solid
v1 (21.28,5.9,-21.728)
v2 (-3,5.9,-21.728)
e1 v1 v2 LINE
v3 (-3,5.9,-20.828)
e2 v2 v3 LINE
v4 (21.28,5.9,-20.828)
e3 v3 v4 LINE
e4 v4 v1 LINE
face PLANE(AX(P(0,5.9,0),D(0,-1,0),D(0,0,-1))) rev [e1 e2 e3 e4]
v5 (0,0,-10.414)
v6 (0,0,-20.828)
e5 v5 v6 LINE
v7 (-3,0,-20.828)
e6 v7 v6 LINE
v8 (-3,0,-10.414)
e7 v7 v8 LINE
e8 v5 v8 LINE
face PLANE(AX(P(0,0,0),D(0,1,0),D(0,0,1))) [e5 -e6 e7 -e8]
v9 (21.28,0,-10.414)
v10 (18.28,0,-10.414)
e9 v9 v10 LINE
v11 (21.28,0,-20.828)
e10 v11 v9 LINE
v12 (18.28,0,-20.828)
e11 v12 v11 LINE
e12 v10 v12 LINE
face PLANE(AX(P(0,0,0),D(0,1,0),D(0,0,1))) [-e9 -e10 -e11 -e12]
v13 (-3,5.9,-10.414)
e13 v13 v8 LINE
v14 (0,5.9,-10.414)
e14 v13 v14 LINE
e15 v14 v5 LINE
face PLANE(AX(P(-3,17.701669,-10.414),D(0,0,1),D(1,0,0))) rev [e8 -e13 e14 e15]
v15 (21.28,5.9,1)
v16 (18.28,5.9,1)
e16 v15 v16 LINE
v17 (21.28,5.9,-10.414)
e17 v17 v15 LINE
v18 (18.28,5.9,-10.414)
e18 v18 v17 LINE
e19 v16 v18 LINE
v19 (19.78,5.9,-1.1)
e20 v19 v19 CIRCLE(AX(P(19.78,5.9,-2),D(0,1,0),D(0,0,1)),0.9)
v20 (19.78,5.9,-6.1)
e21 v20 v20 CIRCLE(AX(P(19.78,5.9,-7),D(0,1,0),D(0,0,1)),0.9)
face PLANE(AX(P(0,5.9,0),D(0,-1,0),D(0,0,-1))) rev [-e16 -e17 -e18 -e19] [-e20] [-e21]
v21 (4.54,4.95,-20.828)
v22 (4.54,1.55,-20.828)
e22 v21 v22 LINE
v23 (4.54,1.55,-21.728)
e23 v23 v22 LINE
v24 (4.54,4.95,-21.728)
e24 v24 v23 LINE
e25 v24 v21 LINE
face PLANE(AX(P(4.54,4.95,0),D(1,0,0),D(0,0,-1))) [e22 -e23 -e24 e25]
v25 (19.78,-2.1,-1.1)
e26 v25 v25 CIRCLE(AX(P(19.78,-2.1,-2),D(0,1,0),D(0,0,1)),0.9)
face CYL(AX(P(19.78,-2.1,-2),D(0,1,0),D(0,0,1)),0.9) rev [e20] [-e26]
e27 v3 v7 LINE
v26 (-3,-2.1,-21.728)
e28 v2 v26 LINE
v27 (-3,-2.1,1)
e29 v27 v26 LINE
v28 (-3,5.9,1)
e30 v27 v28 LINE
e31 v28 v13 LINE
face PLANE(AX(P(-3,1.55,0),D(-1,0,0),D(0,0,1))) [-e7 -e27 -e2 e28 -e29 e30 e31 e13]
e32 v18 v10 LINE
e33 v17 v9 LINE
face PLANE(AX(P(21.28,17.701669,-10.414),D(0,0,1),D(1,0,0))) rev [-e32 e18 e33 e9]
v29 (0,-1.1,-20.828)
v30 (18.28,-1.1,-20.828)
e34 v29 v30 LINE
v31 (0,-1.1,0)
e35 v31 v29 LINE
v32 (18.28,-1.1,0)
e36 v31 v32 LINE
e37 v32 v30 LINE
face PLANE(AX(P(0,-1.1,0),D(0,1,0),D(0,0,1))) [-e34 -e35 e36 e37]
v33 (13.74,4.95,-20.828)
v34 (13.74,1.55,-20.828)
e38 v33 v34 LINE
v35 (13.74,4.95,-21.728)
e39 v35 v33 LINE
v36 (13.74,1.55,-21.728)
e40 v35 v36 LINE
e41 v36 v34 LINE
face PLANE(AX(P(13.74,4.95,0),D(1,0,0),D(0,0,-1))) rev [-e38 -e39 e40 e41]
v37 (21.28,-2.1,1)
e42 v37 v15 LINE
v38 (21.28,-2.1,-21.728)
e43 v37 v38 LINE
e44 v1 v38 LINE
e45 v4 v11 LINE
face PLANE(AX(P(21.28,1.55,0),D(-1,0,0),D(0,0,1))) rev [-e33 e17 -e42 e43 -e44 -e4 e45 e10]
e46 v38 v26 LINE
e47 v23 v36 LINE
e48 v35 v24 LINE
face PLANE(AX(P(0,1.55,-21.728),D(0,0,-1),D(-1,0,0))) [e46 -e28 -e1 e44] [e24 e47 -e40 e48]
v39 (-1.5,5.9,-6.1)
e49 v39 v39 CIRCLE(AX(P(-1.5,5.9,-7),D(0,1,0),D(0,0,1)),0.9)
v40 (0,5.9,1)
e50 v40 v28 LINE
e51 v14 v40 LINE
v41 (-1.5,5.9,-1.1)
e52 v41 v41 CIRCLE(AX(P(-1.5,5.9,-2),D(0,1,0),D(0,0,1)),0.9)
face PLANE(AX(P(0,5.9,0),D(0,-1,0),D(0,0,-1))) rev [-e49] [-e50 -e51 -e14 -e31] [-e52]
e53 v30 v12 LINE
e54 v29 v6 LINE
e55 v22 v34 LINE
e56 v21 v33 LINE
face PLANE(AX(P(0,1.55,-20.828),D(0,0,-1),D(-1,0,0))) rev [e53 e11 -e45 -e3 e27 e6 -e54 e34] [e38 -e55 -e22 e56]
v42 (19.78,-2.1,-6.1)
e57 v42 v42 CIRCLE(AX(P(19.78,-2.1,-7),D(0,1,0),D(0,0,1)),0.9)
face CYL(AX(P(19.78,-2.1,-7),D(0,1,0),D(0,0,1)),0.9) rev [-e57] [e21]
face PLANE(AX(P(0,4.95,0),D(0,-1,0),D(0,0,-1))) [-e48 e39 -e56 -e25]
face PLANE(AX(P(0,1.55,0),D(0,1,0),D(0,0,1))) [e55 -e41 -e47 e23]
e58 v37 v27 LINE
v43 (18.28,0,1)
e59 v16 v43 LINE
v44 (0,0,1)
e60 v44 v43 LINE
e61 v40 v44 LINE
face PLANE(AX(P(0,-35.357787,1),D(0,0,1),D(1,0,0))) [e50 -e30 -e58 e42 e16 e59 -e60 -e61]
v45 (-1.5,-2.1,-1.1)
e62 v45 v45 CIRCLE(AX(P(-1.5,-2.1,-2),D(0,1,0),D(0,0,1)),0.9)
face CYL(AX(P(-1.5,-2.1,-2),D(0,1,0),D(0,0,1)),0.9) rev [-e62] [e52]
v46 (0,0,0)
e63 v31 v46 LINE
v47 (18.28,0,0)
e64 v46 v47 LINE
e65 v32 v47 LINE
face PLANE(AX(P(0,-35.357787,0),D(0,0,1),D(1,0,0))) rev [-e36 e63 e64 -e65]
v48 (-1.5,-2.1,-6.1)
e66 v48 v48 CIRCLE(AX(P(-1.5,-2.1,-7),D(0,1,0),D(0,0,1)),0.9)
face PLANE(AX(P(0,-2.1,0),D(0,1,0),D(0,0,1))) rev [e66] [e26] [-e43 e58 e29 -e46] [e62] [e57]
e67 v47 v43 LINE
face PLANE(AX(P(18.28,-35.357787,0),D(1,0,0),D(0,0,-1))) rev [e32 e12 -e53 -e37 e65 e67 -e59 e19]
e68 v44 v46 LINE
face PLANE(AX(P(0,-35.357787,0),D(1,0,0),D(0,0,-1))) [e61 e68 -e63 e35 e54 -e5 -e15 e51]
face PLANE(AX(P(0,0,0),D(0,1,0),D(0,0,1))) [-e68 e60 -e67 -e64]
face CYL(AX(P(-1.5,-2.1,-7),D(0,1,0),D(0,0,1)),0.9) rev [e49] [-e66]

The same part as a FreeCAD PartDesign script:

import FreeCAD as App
import Part
import Sketcher
from FreeCAD import Vector
Q = App.Units.Quantity


def add_polygon(sketch, points):
    """Adds a closed chain of lines whose ends are joined by coincident constraints."""
    first, n = sketch.GeometryCount, len(points)
    for a, b in zip(points, points[1:] + points[:1]):
        sketch.addGeometry(Part.LineSegment(App.Vector(*a, 0), App.Vector(*b, 0)), False)
    for i in range(n):
        sketch.addConstraint(Sketcher.Constraint("Coincident", first + i, 2, first + (i + 1) % n, 1))

doc = App.newDocument("Part")
body = doc.addObject("PartDesign::Body", "Body")

# Sketch on XZ plane
sketch1 = body.newObject("Sketcher::SketchObject", "Sketch")
sketch1.AttachmentSupport = (doc.getObject("XZ_Plane"), [""])
sketch1.MapMode = "FlatFace"
add_polygon(sketch1, [(21.28, -20.828), (21.28, -21.728), (-3, -21.728), (-3, -20.828)])  # lines 0-3
sketch1.addConstraint([
    Sketcher.Constraint("Vertical", 0),
    Sketcher.Constraint("Horizontal", 1),
    Sketcher.Constraint("Vertical", 2),
    Sketcher.Constraint("Horizontal", 3),
    Sketcher.Constraint("DistanceY", 0, 2, 0, 1, Q("0.9 mm")),
    Sketcher.Constraint("DistanceX", 1, 2, -1, 1, Q("3 mm")),
    Sketcher.Constraint("DistanceX", 1, 2, 1, 1, Q("24.28 mm")),
    Sketcher.Constraint("DistanceY", 0, 2, -1, 1, Q("21.728 mm")),
])
pad1 = body.newObject("PartDesign::Pad", "Pad")
pad1.Profile = sketch1
pad1.Length = 1.55
pad1.Reversed = True
body2 = doc.addObject("PartDesign::Body", "Body001")

# Sketch on XZ plane
sketch2 = body2.newObject("Sketcher::SketchObject", "Sketch001")
sketch2.AttachmentSupport = (doc.getObject("XZ_Plane001"), [""])
sketch2.MapMode = "FlatFace"
sketch2.AttachmentOffset = App.Placement(Vector(0, 0, 1.1), App.Rotation())
add_polygon(sketch2, [(0, -20.828), (0, 0), (18.28, 0), (18.28, -20.828)])  # lines 0-3
sketch2.addConstraint([
    Sketcher.Constraint("Vertical", 0),
    Sketcher.Constraint("Horizontal", 1),
    Sketcher.Constraint("Vertical", 2),
    Sketcher.Constraint("Horizontal", 3),
    Sketcher.Constraint("Coincident", 0, 2, -1, 1),
    Sketcher.Constraint("DistanceX", 1, 1, 1, 2, Q("18.28 mm")),
    Sketcher.Constraint("DistanceY", 0, 1, 0, 2, Q("20.828 mm")),
])
pad2 = body2.newObject("PartDesign::Pad", "Pad001")
pad2.Profile = sketch2
pad2.Length = 1
body.AllowCompound = True
doc.recompute()

boolean = body.newObject("PartDesign::Boolean", "Boolean")
boolean.Type = "Fuse"
boolean.addObjects([body2])

# Sketch on XZ plane
sketch3 = body.newObject("Sketcher::SketchObject", "Sketch002")
sketch3.AttachmentSupport = (doc.getObject("XZ_Plane"), [""])
sketch3.MapMode = "FlatFace"
add_polygon(sketch3, [(-3, 1), (21.28, 1), (21.28, -21.728), (-3, -21.728)])  # lines 0-3
add_polygon(sketch3, [(18.28, -20.828), (18.28, 0), (0, 0), (0, -20.828)])  # lines 4-7
sketch3.addConstraint([
    Sketcher.Constraint("Horizontal", 0),
    Sketcher.Constraint("Vertical", 1),
    Sketcher.Constraint("Horizontal", 2),
    Sketcher.Constraint("Vertical", 3),
    Sketcher.Constraint("Vertical", 4),
    Sketcher.Constraint("Horizontal", 5),
    Sketcher.Constraint("Vertical", 6),
    Sketcher.Constraint("Horizontal", 7),
    Sketcher.Constraint("Coincident", 5, 2, -1, 1),
    Sketcher.Constraint("DistanceY", -1, 1, 0, 2, Q("1 mm")),
    Sketcher.Constraint("DistanceX", 2, 2, -1, 1, Q("3 mm")),
    Sketcher.Constraint("DistanceX", 4, 2, 0, 2, Q("3 mm")),
    Sketcher.Constraint("DistanceX", 0, 1, 0, 2, Q("24.28 mm")),
    Sketcher.Constraint("DistanceY", 2, 2, 6, 2, Q("0.9 mm")),
    Sketcher.Constraint("DistanceY", 1, 2, 1, 1, Q("22.728 mm")),
])
pad3 = body.newObject("PartDesign::Pad", "Pad002")
pad3.Profile = sketch3
pad3.Length = 2.1

# Sketch on XZ plane
sketch4 = body.newObject("Sketcher::SketchObject", "Sketch003")
sketch4.AttachmentSupport = (doc.getObject("XZ_Plane"), [""])
sketch4.MapMode = "FlatFace"
sketch4.AttachmentOffset = App.Placement(Vector(0, 0, -1.55), App.Rotation())
add_polygon(sketch4, [(-3, -21.728), (-3, -20.828), (4.54, -20.828), (4.54, -21.728)])  # lines 0-3
add_polygon(sketch4, [(13.74, -21.728), (13.74, -20.828), (21.28, -20.828), (21.28, -21.728)])  # lines 4-7
sketch4.addConstraint([
    Sketcher.Constraint("Vertical", 0),
    Sketcher.Constraint("Horizontal", 1),
    Sketcher.Constraint("Vertical", 2),
    Sketcher.Constraint("Horizontal", 3),
    Sketcher.Constraint("Vertical", 4),
    Sketcher.Constraint("Horizontal", 5),
    Sketcher.Constraint("Vertical", 6),
    Sketcher.Constraint("Horizontal", 7),
    Sketcher.Constraint("Horizontal", 1, 2, 4, 2),
    Sketcher.Constraint("Horizontal", 3, 2, 6, 2),
    Sketcher.Constraint("Equal", 3, 5),
    Sketcher.Constraint("DistanceY", 0, 1, 0, 2, Q("0.9 mm")),
    Sketcher.Constraint("DistanceX", 0, 2, -1, 1, Q("3 mm")),
    Sketcher.Constraint("DistanceX", 1, 1, 1, 2, Q("7.54 mm")),
    Sketcher.Constraint("DistanceX", 1, 2, 4, 2, Q("9.2 mm")),
    Sketcher.Constraint("DistanceY", 0, 2, -1, 1, Q("20.828 mm")),
])
pad4 = body.newObject("PartDesign::Pad", "Pad003")
pad4.Profile = sketch4
pad4.Length = 3.4
pad4.Reversed = True

# Sketch on XZ plane
sketch5 = body.newObject("Sketcher::SketchObject", "Sketch004")
sketch5.AttachmentSupport = (doc.getObject("XZ_Plane"), [""])
sketch5.MapMode = "FlatFace"
sketch5.AttachmentOffset = App.Placement(Vector(0, 0, -4.95), App.Rotation())
add_polygon(sketch5, [(-3, -21.728), (-3, -20.828), (21.28, -20.828), (21.28, -21.728)])  # lines 0-3
sketch5.addConstraint([
    Sketcher.Constraint("Vertical", 0),
    Sketcher.Constraint("Horizontal", 1),
    Sketcher.Constraint("Vertical", 2),
    Sketcher.Constraint("Horizontal", 3),
    Sketcher.Constraint("DistanceY", 0, 1, 0, 2, Q("0.9 mm")),
    Sketcher.Constraint("DistanceX", 0, 2, -1, 1, Q("3 mm")),
    Sketcher.Constraint("DistanceX", 1, 1, 1, 2, Q("24.28 mm")),
    Sketcher.Constraint("DistanceY", 0, 2, -1, 1, Q("20.828 mm")),
])
pad5 = body.newObject("PartDesign::Pad", "Pad004")
pad5.Profile = sketch5
pad5.Length = 0.95
pad5.Reversed = True

# Sketch on XZ plane
sketch6 = body.newObject("Sketcher::SketchObject", "Sketch005")
sketch6.AttachmentSupport = (doc.getObject("XZ_Plane"), [""])
sketch6.MapMode = "FlatFace"
add_polygon(sketch6, [(-3, -10.414), (-3, 1), (0, 1), (0, -10.414)])  # lines 0-3
add_polygon(sketch6, [(18.28, -10.414), (18.28, 1), (21.28, 1), (21.28, -10.414)])  # lines 4-7
sketch6.addConstraint([
    Sketcher.Constraint("Vertical", 0),
    Sketcher.Constraint("Horizontal", 1),
    Sketcher.Constraint("Vertical", 2),
    Sketcher.Constraint("Horizontal", 3),
    Sketcher.Constraint("Vertical", 4),
    Sketcher.Constraint("Horizontal", 5),
    Sketcher.Constraint("Vertical", 6),
    Sketcher.Constraint("Horizontal", 7),
    Sketcher.Constraint("PointOnObject", 1, 2, -2),
    Sketcher.Constraint("Horizontal", 1, 2, 4, 2),
    Sketcher.Constraint("Horizontal", 3, 2, 6, 2),
    Sketcher.Constraint("Equal", 3, 5),
    Sketcher.Constraint("DistanceX", 1, 1, 1, 2, Q("3 mm")),
    Sketcher.Constraint("DistanceY", -1, 1, 0, 2, Q("1 mm")),
    Sketcher.Constraint("DistanceY", 0, 1, 0, 2, Q("11.414 mm")),
    Sketcher.Constraint("DistanceX", -1, 1, 4, 2, Q("18.28 mm")),
])
pad6 = body.newObject("PartDesign::Pad", "Pad005")
pad6.Profile = sketch6
pad6.Length = 5.9
pad6.Reversed = True

# Sketch on XZ plane
sketch7 = body.newObject("Sketcher::SketchObject", "Sketch006")
sketch7.AttachmentSupport = (doc.getObject("XZ_Plane"), [""])
sketch7.MapMode = "FlatFace"
sketch7.AttachmentOffset = App.Placement(Vector(0, 0, -5.9), App.Rotation())
sketch7.addGeometry([
    Part.Circle(Vector(-1.5, -2, 0), Vector(0, 0, 1), 0.9),
    Part.Circle(Vector(19.78, -2, 0), Vector(0, 0, 1), 0.9),
    Part.Circle(Vector(-1.5, -7, 0), Vector(0, 0, 1), 0.9),
    Part.Circle(Vector(19.78, -7, 0), Vector(0, 0, 1), 0.9),
], False)
sketch7.addConstraint([
    Sketcher.Constraint("Equal", 0, 1),
    Sketcher.Constraint("Equal", 1, 2),
    Sketcher.Constraint("Equal", 2, 3),
    Sketcher.Constraint("Horizontal", 0, 3, 1, 3),
    Sketcher.Constraint("Horizontal", 2, 3, 3, 3),
    Sketcher.Constraint("Vertical", 0, 3, 2, 3),
    Sketcher.Constraint("Vertical", 1, 3, 3, 3),
    Sketcher.Constraint("Diameter", 0, Q("1.8 mm")),
    Sketcher.Constraint("DistanceY", 0, 3, -1, 1, Q("2 mm")),
    Sketcher.Constraint("DistanceY", 2, 3, -1, 1, Q("7 mm")),
    Sketcher.Constraint("DistanceX", 0, 3, -1, 1, Q("1.5 mm")),
    Sketcher.Constraint("DistanceX", -1, 1, 1, 3, Q("19.78 mm")),
])
pocket1 = body.newObject("PartDesign::Pocket", "Pocket")
pocket1.Profile = sketch7
pocket1.Type = "ThroughAll"
pocket1.Reversed = True

doc.recompute()
